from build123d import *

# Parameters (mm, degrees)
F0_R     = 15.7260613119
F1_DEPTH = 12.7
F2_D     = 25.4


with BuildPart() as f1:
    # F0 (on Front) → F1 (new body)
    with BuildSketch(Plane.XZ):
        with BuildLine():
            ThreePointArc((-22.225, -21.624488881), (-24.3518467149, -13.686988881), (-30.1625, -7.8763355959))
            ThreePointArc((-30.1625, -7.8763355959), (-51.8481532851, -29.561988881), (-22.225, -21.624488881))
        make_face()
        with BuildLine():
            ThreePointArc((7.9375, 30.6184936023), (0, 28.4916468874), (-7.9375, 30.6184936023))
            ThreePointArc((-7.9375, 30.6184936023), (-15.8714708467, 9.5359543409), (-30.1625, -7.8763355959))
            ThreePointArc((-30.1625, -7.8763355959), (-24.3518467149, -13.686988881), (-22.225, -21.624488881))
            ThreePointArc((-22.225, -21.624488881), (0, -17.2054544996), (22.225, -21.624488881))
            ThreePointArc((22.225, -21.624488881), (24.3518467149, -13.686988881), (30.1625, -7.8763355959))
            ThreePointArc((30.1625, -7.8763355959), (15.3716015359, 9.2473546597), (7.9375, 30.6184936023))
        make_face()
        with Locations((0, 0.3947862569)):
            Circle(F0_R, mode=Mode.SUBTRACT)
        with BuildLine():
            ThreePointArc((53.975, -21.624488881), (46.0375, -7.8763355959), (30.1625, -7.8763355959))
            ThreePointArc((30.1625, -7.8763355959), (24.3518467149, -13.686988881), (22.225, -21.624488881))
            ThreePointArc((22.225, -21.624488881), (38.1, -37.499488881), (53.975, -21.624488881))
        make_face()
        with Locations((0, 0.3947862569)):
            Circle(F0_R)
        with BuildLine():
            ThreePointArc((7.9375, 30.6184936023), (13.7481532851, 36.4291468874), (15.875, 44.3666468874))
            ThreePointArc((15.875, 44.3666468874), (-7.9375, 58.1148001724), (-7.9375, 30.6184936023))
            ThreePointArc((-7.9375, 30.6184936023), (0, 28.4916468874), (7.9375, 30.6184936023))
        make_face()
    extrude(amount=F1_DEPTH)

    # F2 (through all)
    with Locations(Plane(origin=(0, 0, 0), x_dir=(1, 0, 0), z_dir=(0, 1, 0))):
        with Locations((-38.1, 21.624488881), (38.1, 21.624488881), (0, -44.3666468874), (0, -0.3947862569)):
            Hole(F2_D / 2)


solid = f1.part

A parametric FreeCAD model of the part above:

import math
import FreeCAD as App
import Part
import Sketcher
from FreeCAD import Vector
Q = App.Units.Quantity

doc = App.newDocument("Part")
body = doc.addObject("PartDesign::Body", "Body")

# Sketch on XZ plane
sketch1 = body.newObject("Sketcher::SketchObject", "Sketch")
sketch1.AttachmentSupport = (doc.getObject("XZ_Plane"), [""])
sketch1.MapMode = "FlatFace"
sketch1.addGeometry(Part.ArcOfCircle(Part.Circle(Vector(-38.1, -21.624489, 0), Vector(0, 0, 1), 15.875), math.radians(60), math.radians(360)), False)
sketch1.addGeometry(Part.ArcOfCircle(Part.Circle(Vector(0, -75.303949, 0), Vector(0, 0, 1), 58.098495), math.radians(67.508893), math.radians(112.491107)), False)
sketch1.addGeometry(Part.ArcOfCircle(Part.Circle(Vector(38.1, -21.624489, 0), Vector(0, 0, 1), 15.875), math.radians(180), math.radians(360)), False)
sketch1.addGeometry(Part.ArcOfCircle(Part.Circle(Vector(38.1, -21.624489, 0), Vector(0, 0, 1), 15.875), math.radians(0), math.radians(120)), False)
sketch1.addGeometry(Part.ArcOfCircle(Part.Circle(Vector(67.567358, 39.382589, 0), Vector(0, 0, 1), 60.270469), math.radians(-171.638818), math.radians(-128.361182)), False)
sketch1.addGeometry(Part.ArcOfCircle(Part.Circle(Vector(0, 44.366647, 0), Vector(0, 0, 1), 15.875), math.radians(-60), math.radians(240)), False)
sketch1.addGeometry(Part.ArcOfCircle(Part.Circle(Vector(-75.736584, 44.099094, 0), Vector(0, 0, 1), 69.126279), math.radians(-48.754452), math.radians(-11.245548)), False)
sketch1.addConstraint(Sketcher.Constraint("Coincident", 0, 2, 1, 2))
sketch1.addConstraint(Sketcher.Constraint("Coincident", 1, 1, 2, 1))
sketch1.addConstraint(Sketcher.Constraint("Tangent", 2, 2, 3, 1))
sketch1.addConstraint(Sketcher.Constraint("Coincident", 3, 2, 4, 2))
sketch1.addConstraint(Sketcher.Constraint("Coincident", 4, 1, 5, 1))
sketch1.addConstraint(Sketcher.Constraint("Coincident", 5, 2, 6, 2))
sketch1.addConstraint(Sketcher.Constraint("Coincident", 6, 1, 0, 1))
sketch1.addConstraint(Sketcher.Constraint("Equal", 0, 2))
sketch1.addConstraint(Sketcher.Constraint("Equal", 2, 3))
sketch1.addConstraint(Sketcher.Constraint("Equal", 3, 5))
sketch1.addConstraint(Sketcher.Constraint("Symmetric", 0, 3, 2, 3, -2))
sketch1.addConstraint(Sketcher.Constraint("Symmetric", 4, 1, 5, 2, -2))
sketch1.addConstraint(Sketcher.Constraint("PointOnObject", 1, 3, -2))
sketch1.addConstraint(Sketcher.Constraint("Horizontal", 3, 3, 0, 2))
sketch1.addConstraint(Sketcher.Constraint("Horizontal", 1, 1, 2, 2))
sketch1.addConstraint(Sketcher.Constraint("Horizontal", 3, 2, 6, 1))
sketch1.addConstraint(Sketcher.Constraint("Radius", 0, Q("0.625 in")))
sketch1.addConstraint(Sketcher.Constraint("DistanceX", 0, 3, 2, 3, Q("3 in")))
sketch1.addConstraint(Sketcher.Constraint("DistanceX", 5, 2, 3, 2, Q("1.5 in")))
sketch1.addConstraint(Sketcher.Constraint("DistanceX", -1, 1, 3, 2, Q("1.1875 in")))
sketch1.addConstraint(Sketcher.Constraint("Radius", 4, 60.270469))
sketch1.addConstraint(Sketcher.Constraint("Radius", 6, 69.126279))
sketch1.addConstraint(Sketcher.Constraint("Radius", 1, 58.098495))
sketch1.addConstraint(Sketcher.Constraint("DistanceY", 0, 3, -1, 1, 21.624489))
sketch1.addConstraint(Sketcher.Constraint("DistanceX", -1, 1, 4, 3, 67.567358))
pad1 = body.newObject("PartDesign::Pad", "Pad")
pad1.Profile = sketch1
pad1.Length = Q("0.5 in")

# Sketch on XZ plane
sketch2 = body.newObject("Sketcher::SketchObject", "Sketch001")
sketch2.AttachmentSupport = (doc.getObject("XZ_Plane"), [""])
sketch2.MapMode = "FlatFace"
sketch2.addGeometry(Part.Circle(Vector(-38.1, -21.624489, 0), Vector(0, 0, 1), 12.7), False)
sketch2.addGeometry(Part.Circle(Vector(38.1, -21.624489, 0), Vector(0, 0, 1), 12.7), False)
sketch2.addGeometry(Part.Circle(Vector(0, 44.366647, 0), Vector(0, 0, 1), 12.7), False)
sketch2.addGeometry(Part.Circle(Vector(0, 0.394786, 0), Vector(0, 0, 1), 12.7), False)
sketch2.addConstraint(Sketcher.Constraint("Equal", 0, 1))
sketch2.addConstraint(Sketcher.Constraint("Equal", 1, 2))
sketch2.addConstraint(Sketcher.Constraint("Equal", 2, 3))
sketch2.addConstraint(Sketcher.Constraint("Symmetric", 0, 3, 1, 3, -2))
sketch2.addConstraint(Sketcher.Constraint("PointOnObject", 2, 3, -2))
sketch2.addConstraint(Sketcher.Constraint("PointOnObject", 3, 3, -2))
sketch2.addConstraint(Sketcher.Constraint("Diameter", 0, Q("1 in")))
sketch2.addConstraint(Sketcher.Constraint("DistanceX", 0, 3, 1, 3, Q("3 in")))
sketch2.addConstraint(Sketcher.Constraint("DistanceY", 0, 3, -1, 1, 21.624489))
sketch2.addConstraint(Sketcher.Constraint("DistanceY", 3, 3, 2, 3, 43.971861))
sketch2.addConstraint(Sketcher.Constraint("DistanceY", -1, 1, 2, 3, 44.366647))
doc.recompute()
hole = body.newObject("PartDesign::Hole", "Hole")
hole.Profile = sketch2
hole.ThreadType = "None"
hole.Diameter = Q("1 in")
hole.DepthType = "ThroughAll"
hole.Reversed = True

doc.recompute()
